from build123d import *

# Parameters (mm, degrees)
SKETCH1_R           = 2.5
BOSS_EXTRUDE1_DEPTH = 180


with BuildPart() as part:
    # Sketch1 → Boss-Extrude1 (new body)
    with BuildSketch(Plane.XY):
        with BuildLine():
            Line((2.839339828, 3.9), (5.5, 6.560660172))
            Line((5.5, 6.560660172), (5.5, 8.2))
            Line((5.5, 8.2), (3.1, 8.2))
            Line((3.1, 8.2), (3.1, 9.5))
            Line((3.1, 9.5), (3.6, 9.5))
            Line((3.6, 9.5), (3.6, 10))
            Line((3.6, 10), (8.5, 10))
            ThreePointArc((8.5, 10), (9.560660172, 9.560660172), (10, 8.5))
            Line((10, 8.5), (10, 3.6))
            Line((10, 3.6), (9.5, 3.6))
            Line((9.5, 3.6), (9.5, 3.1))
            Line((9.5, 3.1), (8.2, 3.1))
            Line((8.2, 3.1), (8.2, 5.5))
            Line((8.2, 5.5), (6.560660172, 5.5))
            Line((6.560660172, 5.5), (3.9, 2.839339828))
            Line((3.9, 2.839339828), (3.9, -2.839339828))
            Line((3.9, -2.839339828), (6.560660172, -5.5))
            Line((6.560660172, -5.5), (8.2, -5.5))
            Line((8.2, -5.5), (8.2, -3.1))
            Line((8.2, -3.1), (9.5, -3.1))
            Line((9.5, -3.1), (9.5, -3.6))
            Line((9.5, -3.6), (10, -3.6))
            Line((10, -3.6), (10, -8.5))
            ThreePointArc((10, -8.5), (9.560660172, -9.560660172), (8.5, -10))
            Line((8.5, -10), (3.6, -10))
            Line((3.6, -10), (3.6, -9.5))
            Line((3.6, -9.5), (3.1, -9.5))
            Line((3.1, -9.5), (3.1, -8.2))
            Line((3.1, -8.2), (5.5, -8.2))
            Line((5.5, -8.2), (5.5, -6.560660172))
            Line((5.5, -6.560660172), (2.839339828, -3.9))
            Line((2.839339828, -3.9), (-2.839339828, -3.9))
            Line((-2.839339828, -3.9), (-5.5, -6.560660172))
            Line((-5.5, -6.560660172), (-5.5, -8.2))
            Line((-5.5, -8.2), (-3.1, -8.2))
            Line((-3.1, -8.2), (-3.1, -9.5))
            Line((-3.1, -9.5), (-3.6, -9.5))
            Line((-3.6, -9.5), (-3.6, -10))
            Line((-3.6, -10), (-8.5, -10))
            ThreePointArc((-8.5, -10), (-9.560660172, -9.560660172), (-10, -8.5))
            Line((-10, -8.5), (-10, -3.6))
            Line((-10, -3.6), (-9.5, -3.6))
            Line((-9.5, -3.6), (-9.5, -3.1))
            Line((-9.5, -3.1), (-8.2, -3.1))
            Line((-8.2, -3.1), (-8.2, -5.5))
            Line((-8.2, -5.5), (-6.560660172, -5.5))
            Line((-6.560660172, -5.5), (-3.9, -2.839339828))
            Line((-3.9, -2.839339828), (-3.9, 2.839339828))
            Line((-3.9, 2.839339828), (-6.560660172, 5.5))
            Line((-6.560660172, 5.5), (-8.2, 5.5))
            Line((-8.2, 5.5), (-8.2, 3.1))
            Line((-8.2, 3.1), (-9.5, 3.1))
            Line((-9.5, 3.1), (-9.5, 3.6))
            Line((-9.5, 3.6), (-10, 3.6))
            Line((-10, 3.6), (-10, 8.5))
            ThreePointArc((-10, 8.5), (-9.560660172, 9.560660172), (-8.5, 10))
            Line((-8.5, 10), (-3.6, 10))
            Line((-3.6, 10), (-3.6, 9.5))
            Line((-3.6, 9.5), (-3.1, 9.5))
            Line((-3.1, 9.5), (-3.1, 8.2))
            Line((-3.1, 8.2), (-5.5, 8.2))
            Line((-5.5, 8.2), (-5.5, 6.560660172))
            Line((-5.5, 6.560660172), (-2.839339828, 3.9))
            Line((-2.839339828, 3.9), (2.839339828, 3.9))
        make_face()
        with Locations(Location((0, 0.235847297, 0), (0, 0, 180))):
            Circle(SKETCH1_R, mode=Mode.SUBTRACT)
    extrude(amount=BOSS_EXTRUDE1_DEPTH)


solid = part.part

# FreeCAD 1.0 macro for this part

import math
import FreeCAD as App
import Part
import Sketcher
from FreeCAD import Vector
Q = App.Units.Quantity

doc = App.newDocument("Part")
body = doc.addObject("PartDesign::Body", "Body")

sketch1 = body.newObject("Sketcher::SketchObject", "Sketch")
sketch1.AttachmentSupport = (doc.getObject("XY_Plane"), [""])
sketch1.MapMode = "FlatFace"
sketch1.addGeometry(Part.LineSegment(Vector(5.5, 6.56066, 0), Vector(2.83934, 3.9, 0)), False)
sketch1.addGeometry(Part.LineSegment(Vector(2.83934, 3.9, 0), Vector(-2.83934, 3.9, 0)), False)
sketch1.addGeometry(Part.LineSegment(Vector(-2.83934, 3.9, 0), Vector(-5.5, 6.56066, 0)), False)
sketch1.addGeometry(Part.LineSegment(Vector(-5.5, 6.56066, 0), Vector(-5.5, 8.2, 0)), False)
sketch1.addGeometry(Part.LineSegment(Vector(-5.5, 8.2, 0), Vector(-3.1, 8.2, 0)), False)
sketch1.addGeometry(Part.LineSegment(Vector(-3.1, 8.2, 0), Vector(-3.1, 9.5, 0)), False)
sketch1.addGeometry(Part.LineSegment(Vector(-3.1, 9.5, 0), Vector(-3.6, 9.5, 0)), False)
sketch1.addGeometry(Part.LineSegment(Vector(-3.6, 9.5, 0), Vector(-3.6, 10, 0)), False)
sketch1.addGeometry(Part.LineSegment(Vector(-3.6, 10, 0), Vector(-8.5, 10, 0)), False)
sketch1.addGeometry(Part.ArcOfCircle(Part.Circle(Vector(-8.5, 8.5, 0), Vector(0, 0, 1), 1.5), math.radians(90), math.radians(180)), False)
sketch1.addGeometry(Part.LineSegment(Vector(-10, 8.5, 0), Vector(-10, 3.6, 0)), False)
sketch1.addGeometry(Part.LineSegment(Vector(-10, 3.6, 0), Vector(-9.5, 3.6, 0)), False)
sketch1.addGeometry(Part.LineSegment(Vector(-9.5, 3.6, 0), Vector(-9.5, 3.1, 0)), False)
sketch1.addGeometry(Part.LineSegment(Vector(-9.5, 3.1, 0), Vector(-8.2, 3.1, 0)), False)
sketch1.addGeometry(Part.LineSegment(Vector(-8.2, 3.1, 0), Vector(-8.2, 5.5, 0)), False)
sketch1.addGeometry(Part.LineSegment(Vector(-8.2, 5.5, 0), Vector(-6.56066, 5.5, 0)), False)
sketch1.addGeometry(Part.LineSegment(Vector(-6.56066, 5.5, 0), Vector(-3.9, 2.83934, 0)), False)
sketch1.addGeometry(Part.LineSegment(Vector(-3.9, 2.83934, 0), Vector(-3.9, -2.83934, 0)), False)
sketch1.addGeometry(Part.LineSegment(Vector(-3.9, -2.83934, 0), Vector(-6.56066, -5.5, 0)), False)
sketch1.addGeometry(Part.LineSegment(Vector(-6.56066, -5.5, 0), Vector(-8.2, -5.5, 0)), False)
sketch1.addGeometry(Part.LineSegment(Vector(-8.2, -5.5, 0), Vector(-8.2, -3.1, 0)), False)
sketch1.addGeometry(Part.LineSegment(Vector(-8.2, -3.1, 0), Vector(-9.5, -3.1, 0)), False)
sketch1.addGeometry(Part.LineSegment(Vector(-9.5, -3.1, 0), Vector(-9.5, -3.6, 0)), False)
sketch1.addGeometry(Part.LineSegment(Vector(-9.5, -3.6, 0), Vector(-10, -3.6, 0)), False)
sketch1.addGeometry(Part.LineSegment(Vector(-10, -3.6, 0), Vector(-10, -8.5, 0)), False)
sketch1.addGeometry(Part.ArcOfCircle(Part.Circle(Vector(-8.5, -8.5, 0), Vector(0, 0, 1), 1.5), math.radians(180), math.radians(270)), False)
sketch1.addGeometry(Part.LineSegment(Vector(-8.5, -10, 0), Vector(-3.6, -10, 0)), False)
sketch1.addGeometry(Part.LineSegment(Vector(-3.6, -10, 0), Vector(-3.6, -9.5, 0)), False)
sketch1.addGeometry(Part.LineSegment(Vector(-3.6, -9.5, 0), Vector(-3.1, -9.5, 0)), False)
sketch1.addGeometry(Part.LineSegment(Vector(-3.1, -9.5, 0), Vector(-3.1, -8.2, 0)), False)
sketch1.addGeometry(Part.LineSegment(Vector(-3.1, -8.2, 0), Vector(-5.5, -8.2, 0)), False)
sketch1.addGeometry(Part.LineSegment(Vector(-5.5, -8.2, 0), Vector(-5.5, -6.56066, 0)), False)
sketch1.addGeometry(Part.LineSegment(Vector(-5.5, -6.56066, 0), Vector(-2.83934, -3.9, 0)), False)
sketch1.addGeometry(Part.LineSegment(Vector(-2.83934, -3.9, 0), Vector(2.83934, -3.9, 0)), False)
sketch1.addGeometry(Part.LineSegment(Vector(2.83934, -3.9, 0), Vector(5.5, -6.56066, 0)), False)
sketch1.addGeometry(Part.LineSegment(Vector(5.5, -6.56066, 0), Vector(5.5, -8.2, 0)), False)
sketch1.addGeometry(Part.LineSegment(Vector(5.5, -8.2, 0), Vector(3.1, -8.2, 0)), False)
sketch1.addGeometry(Part.LineSegment(Vector(3.1, -8.2, 0), Vector(3.1, -9.5, 0)), False)
sketch1.addGeometry(Part.LineSegment(Vector(3.1, -9.5, 0), Vector(3.6, -9.5, 0)), False)
sketch1.addGeometry(Part.LineSegment(Vector(3.6, -9.5, 0), Vector(3.6, -10, 0)), False)
sketch1.addGeometry(Part.LineSegment(Vector(3.6, -10, 0), Vector(8.5, -10, 0)), False)
sketch1.addGeometry(Part.ArcOfCircle(Part.Circle(Vector(8.5, -8.5, 0), Vector(0, 0, 1), 1.5), math.radians(-90), math.radians(0)), False)
sketch1.addGeometry(Part.LineSegment(Vector(10, -8.5, 0), Vector(10, -3.6, 0)), False)
sketch1.addGeometry(Part.LineSegment(Vector(10, -3.6, 0), Vector(9.5, -3.6, 0)), False)
sketch1.addGeometry(Part.LineSegment(Vector(9.5, -3.6, 0), Vector(9.5, -3.1, 0)), False)
sketch1.addGeometry(Part.LineSegment(Vector(9.5, -3.1, 0), Vector(8.2, -3.1, 0)), False)
sketch1.addGeometry(Part.LineSegment(Vector(8.2, -3.1, 0), Vector(8.2, -5.5, 0)), False)
sketch1.addGeometry(Part.LineSegment(Vector(8.2, -5.5, 0), Vector(6.56066, -5.5, 0)), False)
sketch1.addGeometry(Part.LineSegment(Vector(6.56066, -5.5, 0), Vector(3.9, -2.83934, 0)), False)
sketch1.addGeometry(Part.LineSegment(Vector(3.9, -2.83934, 0), Vector(3.9, 2.83934, 0)), False)
sketch1.addGeometry(Part.LineSegment(Vector(3.9, 2.83934, 0), Vector(6.56066, 5.5, 0)), False)
sketch1.addGeometry(Part.LineSegment(Vector(6.56066, 5.5, 0), Vector(8.2, 5.5, 0)), False)
sketch1.addGeometry(Part.LineSegment(Vector(8.2, 5.5, 0), Vector(8.2, 3.1, 0)), False)
sketch1.addGeometry(Part.LineSegment(Vector(8.2, 3.1, 0), Vector(9.5, 3.1, 0)), False)
sketch1.addGeometry(Part.LineSegment(Vector(9.5, 3.1, 0), Vector(9.5, 3.6, 0)), False)
sketch1.addGeometry(Part.LineSegment(Vector(9.5, 3.6, 0), Vector(10, 3.6, 0)), False)
sketch1.addGeometry(Part.LineSegment(Vector(10, 3.6, 0), Vector(10, 8.5, 0)), False)
sketch1.addGeometry(Part.ArcOfCircle(Part.Circle(Vector(8.5, 8.5, 0), Vector(0, 0, 1), 1.5), math.radians(0), math.radians(90)), False)
sketch1.addGeometry(Part.LineSegment(Vector(8.5, 10, 0), Vector(3.6, 10, 0)), False)
sketch1.addGeometry(Part.LineSegment(Vector(3.6, 10, 0), Vector(3.6, 9.5, 0)), False)
sketch1.addGeometry(Part.LineSegment(Vector(3.6, 9.5, 0), Vector(3.1, 9.5, 0)), False)
sketch1.addGeometry(Part.LineSegment(Vector(3.1, 9.5, 0), Vector(3.1, 8.2, 0)), False)
sketch1.addGeometry(Part.LineSegment(Vector(3.1, 8.2, 0), Vector(5.5, 8.2, 0)), False)
sketch1.addGeometry(Part.LineSegment(Vector(5.5, 8.2, 0), Vector(5.5, 6.56066, 0)), False)
sketch1.addGeometry(Part.Circle(Vector(0, 0.235847, 0), Vector(0, 0, 1), 2.5), False)
sketch1.addConstraint(Sketcher.Constraint("Coincident", 0, 2, 1, 1))
sketch1.addConstraint(Sketcher.Constraint("Coincident", 1, 2, 2, 1))
sketch1.addConstraint(Sketcher.Constraint("Coincident", 2, 2, 3, 1))
sketch1.addConstraint(Sketcher.Constraint("Coincident", 3, 2, 4, 1))
sketch1.addConstraint(Sketcher.Constraint("Coincident", 4, 2, 5, 1))
sketch1.addConstraint(Sketcher.Constraint("Coincident", 5, 2, 6, 1))
sketch1.addConstraint(Sketcher.Constraint("Coincident", 6, 2, 7, 1))
sketch1.addConstraint(Sketcher.Constraint("Coincident", 7, 2, 8, 1))
sketch1.addConstraint(Sketcher.Constraint("Tangent", 8, 2, 9, 1))
sketch1.addConstraint(Sketcher.Constraint("Tangent", 9, 2, 10, 1))
sketch1.addConstraint(Sketcher.Constraint("Coincident", 10, 2, 11, 1))
sketch1.addConstraint(Sketcher.Constraint("Coincident", 11, 2, 12, 1))
sketch1.addConstraint(Sketcher.Constraint("Coincident", 12, 2, 13, 1))
sketch1.addConstraint(Sketcher.Constraint("Coincident", 13, 2, 14, 1))
sketch1.addConstraint(Sketcher.Constraint("Coincident", 14, 2, 15, 1))
sketch1.addConstraint(Sketcher.Constraint("Coincident", 15, 2, 16, 1))
sketch1.addConstraint(Sketcher.Constraint("Coincident", 16, 2, 17, 1))
sketch1.addConstraint(Sketcher.Constraint("Coincident", 17, 2, 18, 1))
sketch1.addConstraint(Sketcher.Constraint("Coincident", 18, 2, 19, 1))
sketch1.addConstraint(Sketcher.Constraint("Coincident", 19, 2, 20, 1))
sketch1.addConstraint(Sketcher.Constraint("Coincident", 20, 2, 21, 1))
sketch1.addConstraint(Sketcher.Constraint("Coincident", 21, 2, 22, 1))
sketch1.addConstraint(Sketcher.Constraint("Coincident", 22, 2, 23, 1))
sketch1.addConstraint(Sketcher.Constraint("Coincident", 23, 2, 24, 1))
sketch1.addConstraint(Sketcher.Constraint("Tangent", 24, 2, 25, 1))
sketch1.addConstraint(Sketcher.Constraint("Tangent", 25, 2, 26, 1))
sketch1.addConstraint(Sketcher.Constraint("Coincident", 26, 2, 27, 1))
sketch1.addConstraint(Sketcher.Constraint("Coincident", 27, 2, 28, 1))
sketch1.addConstraint(Sketcher.Constraint("Coincident", 28, 2, 29, 1))
sketch1.addConstraint(Sketcher.Constraint("Coincident", 29, 2, 30, 1))
sketch1.addConstraint(Sketcher.Constraint("Coincident", 30, 2, 31, 1))
sketch1.addConstraint(Sketcher.Constraint("Coincident", 31, 2, 32, 1))
sketch1.addConstraint(Sketcher.Constraint("Coincident", 32, 2, 33, 1))
sketch1.addConstraint(Sketcher.Constraint("Coincident", 33, 2, 34, 1))
sketch1.addConstraint(Sketcher.Constraint("Coincident", 34, 2, 35, 1))
sketch1.addConstraint(Sketcher.Constraint("Coincident", 35, 2, 36, 1))
sketch1.addConstraint(Sketcher.Constraint("Coincident", 36, 2, 37, 1))
sketch1.addConstraint(Sketcher.Constraint("Coincident", 37, 2, 38, 1))
sketch1.addConstraint(Sketcher.Constraint("Coincident", 38, 2, 39, 1))
sketch1.addConstraint(Sketcher.Constraint("Coincident", 39, 2, 40, 1))
sketch1.addConstraint(Sketcher.Constraint("Tangent", 40, 2, 41, 1))
sketch1.addConstraint(Sketcher.Constraint("Tangent", 41, 2, 42, 1))
sketch1.addConstraint(Sketcher.Constraint("Coincident", 42, 2, 43, 1))
sketch1.addConstraint(Sketcher.Constraint("Coincident", 43, 2, 44, 1))
sketch1.addConstraint(Sketcher.Constraint("Coincident", 44, 2, 45, 1))
sketch1.addConstraint(Sketcher.Constraint("Coincident", 45, 2, 46, 1))
sketch1.addConstraint(Sketcher.Constraint("Coincident", 46, 2, 47, 1))
sketch1.addConstraint(Sketcher.Constraint("Coincident", 47, 2, 48, 1))
sketch1.addConstraint(Sketcher.Constraint("Coincident", 48, 2, 49, 1))
sketch1.addConstraint(Sketcher.Constraint("Coincident", 49, 2, 50, 1))
sketch1.addConstraint(Sketcher.Constraint("Coincident", 50, 2, 51, 1))
sketch1.addConstraint(Sketcher.Constraint("Coincident", 51, 2, 52, 1))
sketch1.addConstraint(Sketcher.Constraint("Coincident", 52, 2, 53, 1))
sketch1.addConstraint(Sketcher.Constraint("Coincident", 53, 2, 54, 1))
sketch1.addConstraint(Sketcher.Constraint("Coincident", 54, 2, 55, 1))
sketch1.addConstraint(Sketcher.Constraint("Coincident", 55, 2, 56, 1))
sketch1.addConstraint(Sketcher.Constraint("Tangent", 56, 2, 57, 1))
sketch1.addConstraint(Sketcher.Constraint("Tangent", 57, 2, 58, 1))
sketch1.addConstraint(Sketcher.Constraint("Coincident", 58, 2, 59, 1))
sketch1.addConstraint(Sketcher.Constraint("Coincident", 59, 2, 60, 1))
sketch1.addConstraint(Sketcher.Constraint("Coincident", 60, 2, 61, 1))
sketch1.addConstraint(Sketcher.Constraint("Coincident", 61, 2, 62, 1))
sketch1.addConstraint(Sketcher.Constraint("Coincident", 62, 2, 63, 1))
sketch1.addConstraint(Sketcher.Constraint("Coincident", 63, 2, 0, 1))
sketch1.addConstraint(Sketcher.Constraint("Horizontal", 1))
sketch1.addConstraint(Sketcher.Constraint("Vertical", 3))
sketch1.addConstraint(Sketcher.Constraint("Horizontal", 4))
sketch1.addConstraint(Sketcher.Constraint("Vertical", 5))
sketch1.addConstraint(Sketcher.Constraint("Horizontal", 6))
sketch1.addConstraint(Sketcher.Constraint("Vertical", 7))
sketch1.addConstraint(Sketcher.Constraint("Horizontal", 8))
sketch1.addConstraint(Sketcher.Constraint("Vertical", 10))
sketch1.addConstraint(Sketcher.Constraint("Horizontal", 11))
sketch1.addConstraint(Sketcher.Constraint("Vertical", 12))
sketch1.addConstraint(Sketcher.Constraint("Horizontal", 13))
sketch1.addConstraint(Sketcher.Constraint("Vertical", 14))
sketch1.addConstraint(Sketcher.Constraint("Horizontal", 15))
sketch1.addConstraint(Sketcher.Constraint("Vertical", 17))
sketch1.addConstraint(Sketcher.Constraint("Horizontal", 19))
sketch1.addConstraint(Sketcher.Constraint("Vertical", 20))
sketch1.addConstraint(Sketcher.Constraint("Horizontal", 21))
sketch1.addConstraint(Sketcher.Constraint("Vertical", 22))
sketch1.addConstraint(Sketcher.Constraint("Horizontal", 23))
sketch1.addConstraint(Sketcher.Constraint("Vertical", 24))
sketch1.addConstraint(Sketcher.Constraint("Horizontal", 26))
sketch1.addConstraint(Sketcher.Constraint("Vertical", 27))
sketch1.addConstraint(Sketcher.Constraint("Horizontal", 28))
sketch1.addConstraint(Sketcher.Constraint("Vertical", 29))
sketch1.addConstraint(Sketcher.Constraint("Horizontal", 30))
sketch1.addConstraint(Sketcher.Constraint("Vertical", 31))
sketch1.addConstraint(Sketcher.Constraint("Horizontal", 33))
sketch1.addConstraint(Sketcher.Constraint("Vertical", 35))
sketch1.addConstraint(Sketcher.Constraint("Horizontal", 36))
sketch1.addConstraint(Sketcher.Constraint("Vertical", 37))
sketch1.addConstraint(Sketcher.Constraint("Horizontal", 38))
sketch1.addConstraint(Sketcher.Constraint("Vertical", 39))
sketch1.addConstraint(Sketcher.Constraint("Horizontal", 40))
sketch1.addConstraint(Sketcher.Constraint("Vertical", 42))
sketch1.addConstraint(Sketcher.Constraint("Horizontal", 43))
sketch1.addConstraint(Sketcher.Constraint("Vertical", 44))
sketch1.addConstraint(Sketcher.Constraint("Horizontal", 45))
sketch1.addConstraint(Sketcher.Constraint("Vertical", 46))
sketch1.addConstraint(Sketcher.Constraint("Horizontal", 47))
sketch1.addConstraint(Sketcher.Constraint("Vertical", 49))
sketch1.addConstraint(Sketcher.Constraint("Horizontal", 51))
sketch1.addConstraint(Sketcher.Constraint("Vertical", 52))
sketch1.addConstraint(Sketcher.Constraint("Horizontal", 53))
sketch1.addConstraint(Sketcher.Constraint("Vertical", 54))
sketch1.addConstraint(Sketcher.Constraint("Horizontal", 55))
sketch1.addConstraint(Sketcher.Constraint("Vertical", 56))
sketch1.addConstraint(Sketcher.Constraint("Horizontal", 58))
sketch1.addConstraint(Sketcher.Constraint("Vertical", 59))
sketch1.addConstraint(Sketcher.Constraint("Horizontal", 60))
sketch1.addConstraint(Sketcher.Constraint("Vertical", 61))
sketch1.addConstraint(Sketcher.Constraint("Horizontal", 62))
sketch1.addConstraint(Sketcher.Constraint("Vertical", 63))
sketch1.addConstraint(Sketcher.Constraint("Equal", 9, 25))
sketch1.addConstraint(Sketcher.Constraint("Equal", 25, 41))
sketch1.addConstraint(Sketcher.Constraint("Equal", 41, 57))
sketch1.addConstraint(Sketcher.Constraint("Symmetric", 9, 3, 41, 3, -1, 1))
sketch1.addConstraint(Sketcher.Constraint("Symmetric", 25, 3, 57, 3, -1, 1))
sketch1.addConstraint(Sketcher.Constraint("Symmetric", 0, 2, 32, 2, -1, 1))
sketch1.addConstraint(Sketcher.Constraint("Symmetric", 2, 2, 34, 2, -1, 1))
sketch1.addConstraint(Sketcher.Constraint("Symmetric", 4, 2, 36, 2, -1, 1))
sketch1.addConstraint(Sketcher.Constraint("Symmetric", 6, 2, 38, 2, -1, 1))
sketch1.addConstraint(Sketcher.Constraint("Symmetric", 11, 2, 43, 2, -1, 1))
sketch1.addConstraint(Sketcher.Constraint("Symmetric", 13, 2, 45, 2, -1, 1))
sketch1.addConstraint(Sketcher.Constraint("Symmetric", 15, 2, 47, 2, -1, 1))
sketch1.addConstraint(Sketcher.Constraint("Symmetric", 16, 2, 48, 2, -1, 1))
sketch1.addConstraint(Sketcher.Constraint("Symmetric", 18, 2, 50, 2, -1, 1))
sketch1.addConstraint(Sketcher.Constraint("Symmetric", 20, 2, 52, 2, -1, 1))
sketch1.addConstraint(Sketcher.Constraint("Symmetric", 22, 2, 54, 2, -1, 1))
sketch1.addConstraint(Sketcher.Constraint("Symmetric", 27, 2, 59, 2, -1, 1))
sketch1.addConstraint(Sketcher.Constraint("Symmetric", 29, 2, 61, 2, -1, 1))
sketch1.addConstraint(Sketcher.Constraint("Symmetric", 31, 2, 63, 2, -1, 1))
sketch1.addConstraint(Sketcher.Constraint("Symmetric", 25, 3, 41, 3, -2))
sketch1.addConstraint(Sketcher.Constraint("Symmetric", 31, 2, 34, 2, -2))
sketch1.addConstraint(Sketcher.Constraint("Symmetric", 29, 2, 36, 2, -2))
sketch1.addConstraint(Sketcher.Constraint("Symmetric", 27, 2, 38, 2, -2))
sketch1.addConstraint(Sketcher.Constraint("Symmetric", 22, 2, 43, 2, -2))
sketch1.addConstraint(Sketcher.Constraint("Symmetric", 20, 2, 45, 2, -2))
sketch1.addConstraint(Sketcher.Constraint("Symmetric", 18, 2, 47, 2, -2))
sketch1.addConstraint(Sketcher.Constraint("PointOnObject", 64, 3, -2))
sketch1.addConstraint(Sketcher.Constraint("Perpendicular", 0, 2))
sketch1.addConstraint(Sketcher.Constraint("Parallel", 2, 16))
sketch1.addConstraint(Sketcher.Constraint("Perpendicular", 16, 18))
sketch1.addConstraint(Sketcher.Constraint("Perpendicular", 32, 34))
sketch1.addConstraint(Sketcher.Constraint("Perpendicular", 48, 50))
sketch1.addConstraint(Sketcher.Constraint("Horizontal", 17, 2, 48, 2))
sketch1.addConstraint(Sketcher.Constraint("Equal", 6, 11))
sketch1.addConstraint(Sketcher.Constraint("Equal", 51, 3))
sketch1.addConstraint(Sketcher.Constraint("Equal", 53, 5))
sketch1.addConstraint(Sketcher.Constraint("Equal", 60, 7))
sketch1.addConstraint(Sketcher.Constraint("Equal", 58, 10))
sketch1.addConstraint(Sketcher.Constraint("Equal", 7, 12))
sketch1.addConstraint(Sketcher.Constraint("Equal", 62, 14))
sketch1.addConstraint(Sketcher.Constraint("Equal", 33, 17))
sketch1.addConstraint(Sketcher.Constraint("Equal", 2, 16))
sketch1.addConstraint(Sketcher.Constraint("Diameter", 64, Q("5 mm")))
sketch1.addConstraint(Sketcher.Constraint("Radius", 9, Q("1.5 mm")))
sketch1.addConstraint(Sketcher.Constraint("DistanceX", 4, 1, 4, 2, Q("2.4 mm")))
sketch1.addConstraint(Sketcher.Constraint("DistanceX", 6, 2, 6, 1, Q("0.5 mm")))
sketch1.addConstraint(Sketcher.Constraint("DistanceX", 8, 2, 8, 1, Q("4.9 mm")))
sketch1.addConstraint(Sketcher.Constraint("DistanceX", 13, 1, 13, 2, Q("1.3 mm")))
sketch1.addConstraint(Sketcher.Constraint("DistanceY", -1, 1, 7, 2, Q("10 mm")))
sketch1.addConstraint(Sketcher.Constraint("DistanceY", -1, 1, 0, 2, Q("3.9 mm")))
sketch1.addConstraint(Sketcher.Constraint("DistanceX", 1, 2, 1, 1, Q("5.67868 mm")))
sketch1.addConstraint(Sketcher.Constraint("DistanceY", -1, 1, 64, 3, Q("0.235847 mm")))
pad1 = body.newObject("PartDesign::Pad", "Pad")
pad1.Profile = sketch1
pad1.Length = 180

doc.recompute()
